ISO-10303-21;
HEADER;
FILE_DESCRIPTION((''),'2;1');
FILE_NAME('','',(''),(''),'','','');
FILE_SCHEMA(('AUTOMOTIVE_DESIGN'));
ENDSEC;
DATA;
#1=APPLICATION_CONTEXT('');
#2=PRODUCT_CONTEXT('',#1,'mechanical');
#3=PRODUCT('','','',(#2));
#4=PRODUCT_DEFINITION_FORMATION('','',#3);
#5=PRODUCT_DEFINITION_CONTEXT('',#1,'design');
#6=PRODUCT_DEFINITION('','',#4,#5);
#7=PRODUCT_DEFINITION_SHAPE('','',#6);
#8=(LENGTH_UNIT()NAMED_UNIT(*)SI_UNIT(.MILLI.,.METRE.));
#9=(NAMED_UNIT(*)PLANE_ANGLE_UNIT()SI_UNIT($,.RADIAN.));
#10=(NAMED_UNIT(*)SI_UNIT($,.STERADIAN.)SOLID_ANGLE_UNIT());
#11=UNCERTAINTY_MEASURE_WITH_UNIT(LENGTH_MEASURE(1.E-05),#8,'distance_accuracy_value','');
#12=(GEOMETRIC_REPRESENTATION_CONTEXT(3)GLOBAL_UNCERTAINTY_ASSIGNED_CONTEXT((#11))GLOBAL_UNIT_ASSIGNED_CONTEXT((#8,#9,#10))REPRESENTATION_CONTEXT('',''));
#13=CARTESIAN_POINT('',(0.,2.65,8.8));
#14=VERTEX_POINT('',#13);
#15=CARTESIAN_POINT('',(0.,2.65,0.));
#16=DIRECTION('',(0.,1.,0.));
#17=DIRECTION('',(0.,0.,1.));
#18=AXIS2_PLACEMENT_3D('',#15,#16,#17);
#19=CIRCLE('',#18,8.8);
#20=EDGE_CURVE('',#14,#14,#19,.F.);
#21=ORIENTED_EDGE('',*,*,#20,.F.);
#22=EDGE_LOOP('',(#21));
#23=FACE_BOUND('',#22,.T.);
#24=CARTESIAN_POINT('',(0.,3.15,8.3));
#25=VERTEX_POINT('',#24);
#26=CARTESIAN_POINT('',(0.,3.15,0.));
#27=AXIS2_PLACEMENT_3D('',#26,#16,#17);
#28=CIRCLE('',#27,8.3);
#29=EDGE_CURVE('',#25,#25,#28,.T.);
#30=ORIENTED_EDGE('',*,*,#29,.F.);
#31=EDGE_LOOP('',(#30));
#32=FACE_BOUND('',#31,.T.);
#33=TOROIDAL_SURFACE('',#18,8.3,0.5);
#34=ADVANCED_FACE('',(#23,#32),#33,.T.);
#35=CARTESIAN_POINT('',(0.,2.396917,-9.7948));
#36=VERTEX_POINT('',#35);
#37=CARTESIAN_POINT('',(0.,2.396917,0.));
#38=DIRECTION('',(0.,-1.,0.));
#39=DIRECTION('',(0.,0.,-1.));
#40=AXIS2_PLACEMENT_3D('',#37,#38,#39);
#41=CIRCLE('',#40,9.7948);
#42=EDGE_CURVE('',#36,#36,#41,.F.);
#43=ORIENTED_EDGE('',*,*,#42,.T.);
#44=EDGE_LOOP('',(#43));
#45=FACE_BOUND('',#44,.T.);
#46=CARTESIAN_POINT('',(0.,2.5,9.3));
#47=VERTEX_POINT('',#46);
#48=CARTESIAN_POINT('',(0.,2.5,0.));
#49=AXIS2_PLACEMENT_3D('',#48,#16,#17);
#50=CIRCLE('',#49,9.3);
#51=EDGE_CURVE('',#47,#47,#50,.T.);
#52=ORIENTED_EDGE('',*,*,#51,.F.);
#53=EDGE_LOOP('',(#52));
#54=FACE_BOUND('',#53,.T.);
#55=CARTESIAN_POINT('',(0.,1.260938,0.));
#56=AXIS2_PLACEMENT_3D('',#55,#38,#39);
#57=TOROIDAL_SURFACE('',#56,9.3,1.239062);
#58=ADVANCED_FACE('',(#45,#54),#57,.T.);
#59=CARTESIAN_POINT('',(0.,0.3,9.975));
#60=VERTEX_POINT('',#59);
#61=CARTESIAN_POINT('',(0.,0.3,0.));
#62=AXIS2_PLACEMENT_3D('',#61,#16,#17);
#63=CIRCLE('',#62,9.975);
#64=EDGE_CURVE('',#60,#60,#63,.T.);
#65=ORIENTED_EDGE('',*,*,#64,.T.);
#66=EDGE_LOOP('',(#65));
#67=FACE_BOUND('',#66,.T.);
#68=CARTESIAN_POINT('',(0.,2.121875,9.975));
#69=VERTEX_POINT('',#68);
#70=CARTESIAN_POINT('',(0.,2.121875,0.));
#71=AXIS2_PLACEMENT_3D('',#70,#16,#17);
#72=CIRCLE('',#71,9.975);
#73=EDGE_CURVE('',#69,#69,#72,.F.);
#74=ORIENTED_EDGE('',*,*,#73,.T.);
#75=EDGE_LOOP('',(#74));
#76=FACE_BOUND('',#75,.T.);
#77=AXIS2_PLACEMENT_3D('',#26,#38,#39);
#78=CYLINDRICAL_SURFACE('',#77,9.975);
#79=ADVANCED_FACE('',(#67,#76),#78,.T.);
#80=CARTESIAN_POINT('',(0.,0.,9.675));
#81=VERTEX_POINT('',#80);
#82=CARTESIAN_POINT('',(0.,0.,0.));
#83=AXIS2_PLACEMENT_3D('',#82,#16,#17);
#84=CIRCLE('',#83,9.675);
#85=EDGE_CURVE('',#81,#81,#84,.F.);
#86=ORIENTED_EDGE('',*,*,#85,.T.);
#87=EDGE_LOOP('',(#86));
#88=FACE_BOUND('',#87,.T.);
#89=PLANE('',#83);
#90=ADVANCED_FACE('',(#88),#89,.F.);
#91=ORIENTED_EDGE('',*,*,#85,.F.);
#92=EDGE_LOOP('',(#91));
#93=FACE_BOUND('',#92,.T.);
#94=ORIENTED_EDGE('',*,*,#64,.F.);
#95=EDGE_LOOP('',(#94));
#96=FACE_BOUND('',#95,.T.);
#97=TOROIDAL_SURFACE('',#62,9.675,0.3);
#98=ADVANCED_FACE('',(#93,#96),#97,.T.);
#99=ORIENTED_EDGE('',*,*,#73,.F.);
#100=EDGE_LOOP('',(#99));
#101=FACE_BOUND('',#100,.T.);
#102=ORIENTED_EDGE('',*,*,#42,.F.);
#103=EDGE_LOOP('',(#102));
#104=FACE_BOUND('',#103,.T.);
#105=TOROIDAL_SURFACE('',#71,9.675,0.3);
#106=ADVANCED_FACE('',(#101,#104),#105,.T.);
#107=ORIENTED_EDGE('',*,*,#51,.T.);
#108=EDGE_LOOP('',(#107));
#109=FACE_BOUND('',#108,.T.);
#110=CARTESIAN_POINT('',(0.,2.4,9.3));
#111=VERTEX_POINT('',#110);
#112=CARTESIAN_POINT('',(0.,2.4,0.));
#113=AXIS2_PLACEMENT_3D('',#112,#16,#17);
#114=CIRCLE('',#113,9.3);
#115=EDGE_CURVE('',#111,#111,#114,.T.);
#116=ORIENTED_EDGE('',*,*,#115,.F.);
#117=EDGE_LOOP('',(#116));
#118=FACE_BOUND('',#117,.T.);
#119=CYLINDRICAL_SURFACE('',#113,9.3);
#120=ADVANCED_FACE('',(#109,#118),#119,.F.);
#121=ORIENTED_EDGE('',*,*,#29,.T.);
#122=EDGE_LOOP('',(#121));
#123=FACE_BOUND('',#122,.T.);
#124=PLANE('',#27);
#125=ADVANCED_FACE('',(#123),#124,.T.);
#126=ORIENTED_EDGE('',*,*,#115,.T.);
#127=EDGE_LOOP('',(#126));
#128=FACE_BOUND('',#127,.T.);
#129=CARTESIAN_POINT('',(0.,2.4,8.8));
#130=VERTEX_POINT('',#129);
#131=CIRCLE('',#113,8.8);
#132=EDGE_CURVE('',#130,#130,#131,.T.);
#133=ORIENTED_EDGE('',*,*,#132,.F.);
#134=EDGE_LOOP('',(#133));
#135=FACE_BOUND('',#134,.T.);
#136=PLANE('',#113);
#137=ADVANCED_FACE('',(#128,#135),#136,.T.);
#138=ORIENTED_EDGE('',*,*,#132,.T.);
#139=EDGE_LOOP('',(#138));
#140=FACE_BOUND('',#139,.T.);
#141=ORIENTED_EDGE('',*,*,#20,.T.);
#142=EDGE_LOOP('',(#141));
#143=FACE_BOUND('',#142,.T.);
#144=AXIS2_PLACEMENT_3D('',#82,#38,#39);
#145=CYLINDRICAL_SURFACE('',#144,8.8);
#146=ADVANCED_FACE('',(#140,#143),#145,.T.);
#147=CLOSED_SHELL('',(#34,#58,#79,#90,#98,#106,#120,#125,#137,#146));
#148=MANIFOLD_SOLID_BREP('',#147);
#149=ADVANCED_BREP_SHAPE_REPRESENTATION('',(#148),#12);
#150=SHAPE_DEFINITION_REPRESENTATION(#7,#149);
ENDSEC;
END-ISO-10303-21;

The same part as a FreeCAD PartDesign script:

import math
import FreeCAD as App
import Part
import Sketcher
from FreeCAD import Vector


def edges_at(feature, points):
    """Names of the edges that pass closest to the given points."""
    edges = feature.Shape.Edges
    near = lambda p: min(range(len(edges)), key=lambda i: edges[i].distToShape(Part.Vertex(*p))[0])
    return sorted({f"Edge{near(p) + 1}" for p in points})

doc = App.newDocument("Part")
params = doc.addObject("Spreadsheet::Sheet", "Params")
for row, (alias, value) in enumerate([
    ("sketch1_diameter", "19.95 mm"),
    ("pad1_length", "3.15 mm"),
    ("sketch2_width", "0.5 mm"),
    ("sketch2_height", "0.65 mm"),
    ("sketch2_height2", "0.85 mm"),
    ("groove_angle", "360 deg"),
    ("fillet_radius", "0.5 mm"),
    ("sketch3_diameter", "18.6 mm"),
    ("sketch3_diameter2", "17.6 mm"),
    ("pocket1_length", "0.1 mm"),
    ("fillet2_radius", "0.3 mm"),
], start=1):
    params.set(f"A{row}", alias)
    params.set(f"B{row}", "=" + value)
    params.setAlias(f"B{row}", alias)

body = doc.addObject("PartDesign::Body", "Body")

# Sketch on XZ plane
sketch1 = body.newObject("Sketcher::SketchObject", "Sketch")
sketch1.AttachmentSupport = (doc.getObject("XZ_Plane"), [""])
sketch1.MapMode = "FlatFace"
sketch1.addGeometry(Part.Circle(Vector(0, 0, 0), Vector(0, 0, 1), 9.975), False)
sketch1.addConstraint([
    Sketcher.Constraint("Coincident", 0, 3, -1, 1),
    Sketcher.Constraint("Diameter", 0, 19.95),
])
sketch1.setExpression("Constraints[1]", "Params.sketch1_diameter")
pad1 = body.newObject("PartDesign::Pad", "Pad")
pad1.Profile = sketch1
pad1.setExpression("Length", "Params.pad1_length")
pad1.Reversed = True

# Sketch on XY plane
sketch2 = body.newObject("Sketcher::SketchObject", "Sketch001")
sketch2.AttachmentSupport = (doc.getObject("XY_Plane"), [""])
sketch2.MapMode = "FlatFace"
sketch2.addGeometry([
    Part.LineSegment(Vector(8.8, 3.15, 0), Vector(8.8, 2.5, 0)),  # 0
    Part.LineSegment(Vector(8.8, 2.5, 0), Vector(9.3, 2.5, 0)),  # 1
    Part.ArcOfCircle(Part.Circle(Vector(9.3, 1.260938, 0), Vector(0, 0, 1), 1.239062), math.radians(56.991277), math.radians(90)),  # 2
    Part.LineSegment(Vector(9.975, 2.3, 0), Vector(9.975, 3.15, 0)),  # 3
    Part.LineSegment(Vector(9.975, 3.15, 0), Vector(8.8, 3.15, 0)),  # 4
], False)
sketch2.addConstraint([
    Sketcher.Constraint("Coincident", 0, 2, 1, 1),
    Sketcher.Constraint("Tangent", 1, 2, 2, 2),
    Sketcher.Constraint("Coincident", 2, 1, 3, 1),
    Sketcher.Constraint("Coincident", 3, 2, 4, 1),
    Sketcher.Constraint("Coincident", 4, 2, 0, 1),
    Sketcher.Constraint("Vertical", 0),
    Sketcher.Constraint("Horizontal", 1),
    Sketcher.Constraint("Vertical", 3),
    Sketcher.Constraint("Horizontal", 4),
    Sketcher.Constraint("DistanceX", 1, 1, 1, 2, 0.5),
    Sketcher.Constraint("DistanceY", 0, 2, 0, 1, 0.65),
    Sketcher.Constraint("DistanceY", 3, 1, 3, 2, 0.85),
    Sketcher.Constraint("DistanceX", -1, 1, 2, 3, 9.3),
    Sketcher.Constraint("DistanceY", -1, 1, 0, 2, 2.5),
    Sketcher.Constraint("DistanceX", 4, 2, 4, 1, 1.175),
])
sketch2.setExpression("Constraints[9]", "Params.sketch2_width")
sketch2.setExpression("Constraints[10]", "Params.sketch2_height")
sketch2.setExpression("Constraints[11]", "Params.sketch2_height2")
groove = body.newObject("PartDesign::Groove", "Groove")
groove.Profile = sketch2
groove.ReferenceAxis = (sketch2, ["V_Axis"])
groove.setExpression("Angle", "Params.groove_angle")
doc.recompute()

fillet = body.newObject("PartDesign::Fillet", "Fillet")
fillet.Base = (groove, edges_at(groove, [(0, 3.15, 8.8)]))
fillet.setExpression("Radius", "Params.fillet_radius")

# Sketch on XZ plane
sketch3 = body.newObject("Sketcher::SketchObject", "Sketch002")
sketch3.AttachmentSupport = (doc.getObject("XZ_Plane"), [""])
sketch3.MapMode = "FlatFace"
sketch3.AttachmentOffset = App.Placement(Vector(0, 0, -2.4), App.Rotation())
sketch3.addGeometry([
    Part.Circle(Vector(0, 0, 0), Vector(0, 0, 1), 9.3),
    Part.Circle(Vector(0, 0, 0), Vector(0, 0, 1), 8.8),
], False)
sketch3.addConstraint([
    Sketcher.Constraint("Coincident", 0, 3, -1, 1),
    Sketcher.Constraint("Coincident", 1, 3, -1, 1),
    Sketcher.Constraint("Diameter", 0, 18.6),
    Sketcher.Constraint("Diameter", 1, 17.6),
])
sketch3.setExpression("Constraints[2]", "Params.sketch3_diameter")
sketch3.setExpression("Constraints[3]", "Params.sketch3_diameter2")
pocket1 = body.newObject("PartDesign::Pocket", "Pocket")
pocket1.Profile = sketch3
pocket1.setExpression("Length", "Params.pocket1_length")
doc.recompute()

fillet2 = body.newObject("PartDesign::Fillet", "Fillet001")
fillet2.Base = (pocket1, edges_at(pocket1, [(0, 0, -9.975), (-9.975, 2.3, 0)]))
fillet2.setExpression("Radius", "Params.fillet2_radius")

doc.recompute()
